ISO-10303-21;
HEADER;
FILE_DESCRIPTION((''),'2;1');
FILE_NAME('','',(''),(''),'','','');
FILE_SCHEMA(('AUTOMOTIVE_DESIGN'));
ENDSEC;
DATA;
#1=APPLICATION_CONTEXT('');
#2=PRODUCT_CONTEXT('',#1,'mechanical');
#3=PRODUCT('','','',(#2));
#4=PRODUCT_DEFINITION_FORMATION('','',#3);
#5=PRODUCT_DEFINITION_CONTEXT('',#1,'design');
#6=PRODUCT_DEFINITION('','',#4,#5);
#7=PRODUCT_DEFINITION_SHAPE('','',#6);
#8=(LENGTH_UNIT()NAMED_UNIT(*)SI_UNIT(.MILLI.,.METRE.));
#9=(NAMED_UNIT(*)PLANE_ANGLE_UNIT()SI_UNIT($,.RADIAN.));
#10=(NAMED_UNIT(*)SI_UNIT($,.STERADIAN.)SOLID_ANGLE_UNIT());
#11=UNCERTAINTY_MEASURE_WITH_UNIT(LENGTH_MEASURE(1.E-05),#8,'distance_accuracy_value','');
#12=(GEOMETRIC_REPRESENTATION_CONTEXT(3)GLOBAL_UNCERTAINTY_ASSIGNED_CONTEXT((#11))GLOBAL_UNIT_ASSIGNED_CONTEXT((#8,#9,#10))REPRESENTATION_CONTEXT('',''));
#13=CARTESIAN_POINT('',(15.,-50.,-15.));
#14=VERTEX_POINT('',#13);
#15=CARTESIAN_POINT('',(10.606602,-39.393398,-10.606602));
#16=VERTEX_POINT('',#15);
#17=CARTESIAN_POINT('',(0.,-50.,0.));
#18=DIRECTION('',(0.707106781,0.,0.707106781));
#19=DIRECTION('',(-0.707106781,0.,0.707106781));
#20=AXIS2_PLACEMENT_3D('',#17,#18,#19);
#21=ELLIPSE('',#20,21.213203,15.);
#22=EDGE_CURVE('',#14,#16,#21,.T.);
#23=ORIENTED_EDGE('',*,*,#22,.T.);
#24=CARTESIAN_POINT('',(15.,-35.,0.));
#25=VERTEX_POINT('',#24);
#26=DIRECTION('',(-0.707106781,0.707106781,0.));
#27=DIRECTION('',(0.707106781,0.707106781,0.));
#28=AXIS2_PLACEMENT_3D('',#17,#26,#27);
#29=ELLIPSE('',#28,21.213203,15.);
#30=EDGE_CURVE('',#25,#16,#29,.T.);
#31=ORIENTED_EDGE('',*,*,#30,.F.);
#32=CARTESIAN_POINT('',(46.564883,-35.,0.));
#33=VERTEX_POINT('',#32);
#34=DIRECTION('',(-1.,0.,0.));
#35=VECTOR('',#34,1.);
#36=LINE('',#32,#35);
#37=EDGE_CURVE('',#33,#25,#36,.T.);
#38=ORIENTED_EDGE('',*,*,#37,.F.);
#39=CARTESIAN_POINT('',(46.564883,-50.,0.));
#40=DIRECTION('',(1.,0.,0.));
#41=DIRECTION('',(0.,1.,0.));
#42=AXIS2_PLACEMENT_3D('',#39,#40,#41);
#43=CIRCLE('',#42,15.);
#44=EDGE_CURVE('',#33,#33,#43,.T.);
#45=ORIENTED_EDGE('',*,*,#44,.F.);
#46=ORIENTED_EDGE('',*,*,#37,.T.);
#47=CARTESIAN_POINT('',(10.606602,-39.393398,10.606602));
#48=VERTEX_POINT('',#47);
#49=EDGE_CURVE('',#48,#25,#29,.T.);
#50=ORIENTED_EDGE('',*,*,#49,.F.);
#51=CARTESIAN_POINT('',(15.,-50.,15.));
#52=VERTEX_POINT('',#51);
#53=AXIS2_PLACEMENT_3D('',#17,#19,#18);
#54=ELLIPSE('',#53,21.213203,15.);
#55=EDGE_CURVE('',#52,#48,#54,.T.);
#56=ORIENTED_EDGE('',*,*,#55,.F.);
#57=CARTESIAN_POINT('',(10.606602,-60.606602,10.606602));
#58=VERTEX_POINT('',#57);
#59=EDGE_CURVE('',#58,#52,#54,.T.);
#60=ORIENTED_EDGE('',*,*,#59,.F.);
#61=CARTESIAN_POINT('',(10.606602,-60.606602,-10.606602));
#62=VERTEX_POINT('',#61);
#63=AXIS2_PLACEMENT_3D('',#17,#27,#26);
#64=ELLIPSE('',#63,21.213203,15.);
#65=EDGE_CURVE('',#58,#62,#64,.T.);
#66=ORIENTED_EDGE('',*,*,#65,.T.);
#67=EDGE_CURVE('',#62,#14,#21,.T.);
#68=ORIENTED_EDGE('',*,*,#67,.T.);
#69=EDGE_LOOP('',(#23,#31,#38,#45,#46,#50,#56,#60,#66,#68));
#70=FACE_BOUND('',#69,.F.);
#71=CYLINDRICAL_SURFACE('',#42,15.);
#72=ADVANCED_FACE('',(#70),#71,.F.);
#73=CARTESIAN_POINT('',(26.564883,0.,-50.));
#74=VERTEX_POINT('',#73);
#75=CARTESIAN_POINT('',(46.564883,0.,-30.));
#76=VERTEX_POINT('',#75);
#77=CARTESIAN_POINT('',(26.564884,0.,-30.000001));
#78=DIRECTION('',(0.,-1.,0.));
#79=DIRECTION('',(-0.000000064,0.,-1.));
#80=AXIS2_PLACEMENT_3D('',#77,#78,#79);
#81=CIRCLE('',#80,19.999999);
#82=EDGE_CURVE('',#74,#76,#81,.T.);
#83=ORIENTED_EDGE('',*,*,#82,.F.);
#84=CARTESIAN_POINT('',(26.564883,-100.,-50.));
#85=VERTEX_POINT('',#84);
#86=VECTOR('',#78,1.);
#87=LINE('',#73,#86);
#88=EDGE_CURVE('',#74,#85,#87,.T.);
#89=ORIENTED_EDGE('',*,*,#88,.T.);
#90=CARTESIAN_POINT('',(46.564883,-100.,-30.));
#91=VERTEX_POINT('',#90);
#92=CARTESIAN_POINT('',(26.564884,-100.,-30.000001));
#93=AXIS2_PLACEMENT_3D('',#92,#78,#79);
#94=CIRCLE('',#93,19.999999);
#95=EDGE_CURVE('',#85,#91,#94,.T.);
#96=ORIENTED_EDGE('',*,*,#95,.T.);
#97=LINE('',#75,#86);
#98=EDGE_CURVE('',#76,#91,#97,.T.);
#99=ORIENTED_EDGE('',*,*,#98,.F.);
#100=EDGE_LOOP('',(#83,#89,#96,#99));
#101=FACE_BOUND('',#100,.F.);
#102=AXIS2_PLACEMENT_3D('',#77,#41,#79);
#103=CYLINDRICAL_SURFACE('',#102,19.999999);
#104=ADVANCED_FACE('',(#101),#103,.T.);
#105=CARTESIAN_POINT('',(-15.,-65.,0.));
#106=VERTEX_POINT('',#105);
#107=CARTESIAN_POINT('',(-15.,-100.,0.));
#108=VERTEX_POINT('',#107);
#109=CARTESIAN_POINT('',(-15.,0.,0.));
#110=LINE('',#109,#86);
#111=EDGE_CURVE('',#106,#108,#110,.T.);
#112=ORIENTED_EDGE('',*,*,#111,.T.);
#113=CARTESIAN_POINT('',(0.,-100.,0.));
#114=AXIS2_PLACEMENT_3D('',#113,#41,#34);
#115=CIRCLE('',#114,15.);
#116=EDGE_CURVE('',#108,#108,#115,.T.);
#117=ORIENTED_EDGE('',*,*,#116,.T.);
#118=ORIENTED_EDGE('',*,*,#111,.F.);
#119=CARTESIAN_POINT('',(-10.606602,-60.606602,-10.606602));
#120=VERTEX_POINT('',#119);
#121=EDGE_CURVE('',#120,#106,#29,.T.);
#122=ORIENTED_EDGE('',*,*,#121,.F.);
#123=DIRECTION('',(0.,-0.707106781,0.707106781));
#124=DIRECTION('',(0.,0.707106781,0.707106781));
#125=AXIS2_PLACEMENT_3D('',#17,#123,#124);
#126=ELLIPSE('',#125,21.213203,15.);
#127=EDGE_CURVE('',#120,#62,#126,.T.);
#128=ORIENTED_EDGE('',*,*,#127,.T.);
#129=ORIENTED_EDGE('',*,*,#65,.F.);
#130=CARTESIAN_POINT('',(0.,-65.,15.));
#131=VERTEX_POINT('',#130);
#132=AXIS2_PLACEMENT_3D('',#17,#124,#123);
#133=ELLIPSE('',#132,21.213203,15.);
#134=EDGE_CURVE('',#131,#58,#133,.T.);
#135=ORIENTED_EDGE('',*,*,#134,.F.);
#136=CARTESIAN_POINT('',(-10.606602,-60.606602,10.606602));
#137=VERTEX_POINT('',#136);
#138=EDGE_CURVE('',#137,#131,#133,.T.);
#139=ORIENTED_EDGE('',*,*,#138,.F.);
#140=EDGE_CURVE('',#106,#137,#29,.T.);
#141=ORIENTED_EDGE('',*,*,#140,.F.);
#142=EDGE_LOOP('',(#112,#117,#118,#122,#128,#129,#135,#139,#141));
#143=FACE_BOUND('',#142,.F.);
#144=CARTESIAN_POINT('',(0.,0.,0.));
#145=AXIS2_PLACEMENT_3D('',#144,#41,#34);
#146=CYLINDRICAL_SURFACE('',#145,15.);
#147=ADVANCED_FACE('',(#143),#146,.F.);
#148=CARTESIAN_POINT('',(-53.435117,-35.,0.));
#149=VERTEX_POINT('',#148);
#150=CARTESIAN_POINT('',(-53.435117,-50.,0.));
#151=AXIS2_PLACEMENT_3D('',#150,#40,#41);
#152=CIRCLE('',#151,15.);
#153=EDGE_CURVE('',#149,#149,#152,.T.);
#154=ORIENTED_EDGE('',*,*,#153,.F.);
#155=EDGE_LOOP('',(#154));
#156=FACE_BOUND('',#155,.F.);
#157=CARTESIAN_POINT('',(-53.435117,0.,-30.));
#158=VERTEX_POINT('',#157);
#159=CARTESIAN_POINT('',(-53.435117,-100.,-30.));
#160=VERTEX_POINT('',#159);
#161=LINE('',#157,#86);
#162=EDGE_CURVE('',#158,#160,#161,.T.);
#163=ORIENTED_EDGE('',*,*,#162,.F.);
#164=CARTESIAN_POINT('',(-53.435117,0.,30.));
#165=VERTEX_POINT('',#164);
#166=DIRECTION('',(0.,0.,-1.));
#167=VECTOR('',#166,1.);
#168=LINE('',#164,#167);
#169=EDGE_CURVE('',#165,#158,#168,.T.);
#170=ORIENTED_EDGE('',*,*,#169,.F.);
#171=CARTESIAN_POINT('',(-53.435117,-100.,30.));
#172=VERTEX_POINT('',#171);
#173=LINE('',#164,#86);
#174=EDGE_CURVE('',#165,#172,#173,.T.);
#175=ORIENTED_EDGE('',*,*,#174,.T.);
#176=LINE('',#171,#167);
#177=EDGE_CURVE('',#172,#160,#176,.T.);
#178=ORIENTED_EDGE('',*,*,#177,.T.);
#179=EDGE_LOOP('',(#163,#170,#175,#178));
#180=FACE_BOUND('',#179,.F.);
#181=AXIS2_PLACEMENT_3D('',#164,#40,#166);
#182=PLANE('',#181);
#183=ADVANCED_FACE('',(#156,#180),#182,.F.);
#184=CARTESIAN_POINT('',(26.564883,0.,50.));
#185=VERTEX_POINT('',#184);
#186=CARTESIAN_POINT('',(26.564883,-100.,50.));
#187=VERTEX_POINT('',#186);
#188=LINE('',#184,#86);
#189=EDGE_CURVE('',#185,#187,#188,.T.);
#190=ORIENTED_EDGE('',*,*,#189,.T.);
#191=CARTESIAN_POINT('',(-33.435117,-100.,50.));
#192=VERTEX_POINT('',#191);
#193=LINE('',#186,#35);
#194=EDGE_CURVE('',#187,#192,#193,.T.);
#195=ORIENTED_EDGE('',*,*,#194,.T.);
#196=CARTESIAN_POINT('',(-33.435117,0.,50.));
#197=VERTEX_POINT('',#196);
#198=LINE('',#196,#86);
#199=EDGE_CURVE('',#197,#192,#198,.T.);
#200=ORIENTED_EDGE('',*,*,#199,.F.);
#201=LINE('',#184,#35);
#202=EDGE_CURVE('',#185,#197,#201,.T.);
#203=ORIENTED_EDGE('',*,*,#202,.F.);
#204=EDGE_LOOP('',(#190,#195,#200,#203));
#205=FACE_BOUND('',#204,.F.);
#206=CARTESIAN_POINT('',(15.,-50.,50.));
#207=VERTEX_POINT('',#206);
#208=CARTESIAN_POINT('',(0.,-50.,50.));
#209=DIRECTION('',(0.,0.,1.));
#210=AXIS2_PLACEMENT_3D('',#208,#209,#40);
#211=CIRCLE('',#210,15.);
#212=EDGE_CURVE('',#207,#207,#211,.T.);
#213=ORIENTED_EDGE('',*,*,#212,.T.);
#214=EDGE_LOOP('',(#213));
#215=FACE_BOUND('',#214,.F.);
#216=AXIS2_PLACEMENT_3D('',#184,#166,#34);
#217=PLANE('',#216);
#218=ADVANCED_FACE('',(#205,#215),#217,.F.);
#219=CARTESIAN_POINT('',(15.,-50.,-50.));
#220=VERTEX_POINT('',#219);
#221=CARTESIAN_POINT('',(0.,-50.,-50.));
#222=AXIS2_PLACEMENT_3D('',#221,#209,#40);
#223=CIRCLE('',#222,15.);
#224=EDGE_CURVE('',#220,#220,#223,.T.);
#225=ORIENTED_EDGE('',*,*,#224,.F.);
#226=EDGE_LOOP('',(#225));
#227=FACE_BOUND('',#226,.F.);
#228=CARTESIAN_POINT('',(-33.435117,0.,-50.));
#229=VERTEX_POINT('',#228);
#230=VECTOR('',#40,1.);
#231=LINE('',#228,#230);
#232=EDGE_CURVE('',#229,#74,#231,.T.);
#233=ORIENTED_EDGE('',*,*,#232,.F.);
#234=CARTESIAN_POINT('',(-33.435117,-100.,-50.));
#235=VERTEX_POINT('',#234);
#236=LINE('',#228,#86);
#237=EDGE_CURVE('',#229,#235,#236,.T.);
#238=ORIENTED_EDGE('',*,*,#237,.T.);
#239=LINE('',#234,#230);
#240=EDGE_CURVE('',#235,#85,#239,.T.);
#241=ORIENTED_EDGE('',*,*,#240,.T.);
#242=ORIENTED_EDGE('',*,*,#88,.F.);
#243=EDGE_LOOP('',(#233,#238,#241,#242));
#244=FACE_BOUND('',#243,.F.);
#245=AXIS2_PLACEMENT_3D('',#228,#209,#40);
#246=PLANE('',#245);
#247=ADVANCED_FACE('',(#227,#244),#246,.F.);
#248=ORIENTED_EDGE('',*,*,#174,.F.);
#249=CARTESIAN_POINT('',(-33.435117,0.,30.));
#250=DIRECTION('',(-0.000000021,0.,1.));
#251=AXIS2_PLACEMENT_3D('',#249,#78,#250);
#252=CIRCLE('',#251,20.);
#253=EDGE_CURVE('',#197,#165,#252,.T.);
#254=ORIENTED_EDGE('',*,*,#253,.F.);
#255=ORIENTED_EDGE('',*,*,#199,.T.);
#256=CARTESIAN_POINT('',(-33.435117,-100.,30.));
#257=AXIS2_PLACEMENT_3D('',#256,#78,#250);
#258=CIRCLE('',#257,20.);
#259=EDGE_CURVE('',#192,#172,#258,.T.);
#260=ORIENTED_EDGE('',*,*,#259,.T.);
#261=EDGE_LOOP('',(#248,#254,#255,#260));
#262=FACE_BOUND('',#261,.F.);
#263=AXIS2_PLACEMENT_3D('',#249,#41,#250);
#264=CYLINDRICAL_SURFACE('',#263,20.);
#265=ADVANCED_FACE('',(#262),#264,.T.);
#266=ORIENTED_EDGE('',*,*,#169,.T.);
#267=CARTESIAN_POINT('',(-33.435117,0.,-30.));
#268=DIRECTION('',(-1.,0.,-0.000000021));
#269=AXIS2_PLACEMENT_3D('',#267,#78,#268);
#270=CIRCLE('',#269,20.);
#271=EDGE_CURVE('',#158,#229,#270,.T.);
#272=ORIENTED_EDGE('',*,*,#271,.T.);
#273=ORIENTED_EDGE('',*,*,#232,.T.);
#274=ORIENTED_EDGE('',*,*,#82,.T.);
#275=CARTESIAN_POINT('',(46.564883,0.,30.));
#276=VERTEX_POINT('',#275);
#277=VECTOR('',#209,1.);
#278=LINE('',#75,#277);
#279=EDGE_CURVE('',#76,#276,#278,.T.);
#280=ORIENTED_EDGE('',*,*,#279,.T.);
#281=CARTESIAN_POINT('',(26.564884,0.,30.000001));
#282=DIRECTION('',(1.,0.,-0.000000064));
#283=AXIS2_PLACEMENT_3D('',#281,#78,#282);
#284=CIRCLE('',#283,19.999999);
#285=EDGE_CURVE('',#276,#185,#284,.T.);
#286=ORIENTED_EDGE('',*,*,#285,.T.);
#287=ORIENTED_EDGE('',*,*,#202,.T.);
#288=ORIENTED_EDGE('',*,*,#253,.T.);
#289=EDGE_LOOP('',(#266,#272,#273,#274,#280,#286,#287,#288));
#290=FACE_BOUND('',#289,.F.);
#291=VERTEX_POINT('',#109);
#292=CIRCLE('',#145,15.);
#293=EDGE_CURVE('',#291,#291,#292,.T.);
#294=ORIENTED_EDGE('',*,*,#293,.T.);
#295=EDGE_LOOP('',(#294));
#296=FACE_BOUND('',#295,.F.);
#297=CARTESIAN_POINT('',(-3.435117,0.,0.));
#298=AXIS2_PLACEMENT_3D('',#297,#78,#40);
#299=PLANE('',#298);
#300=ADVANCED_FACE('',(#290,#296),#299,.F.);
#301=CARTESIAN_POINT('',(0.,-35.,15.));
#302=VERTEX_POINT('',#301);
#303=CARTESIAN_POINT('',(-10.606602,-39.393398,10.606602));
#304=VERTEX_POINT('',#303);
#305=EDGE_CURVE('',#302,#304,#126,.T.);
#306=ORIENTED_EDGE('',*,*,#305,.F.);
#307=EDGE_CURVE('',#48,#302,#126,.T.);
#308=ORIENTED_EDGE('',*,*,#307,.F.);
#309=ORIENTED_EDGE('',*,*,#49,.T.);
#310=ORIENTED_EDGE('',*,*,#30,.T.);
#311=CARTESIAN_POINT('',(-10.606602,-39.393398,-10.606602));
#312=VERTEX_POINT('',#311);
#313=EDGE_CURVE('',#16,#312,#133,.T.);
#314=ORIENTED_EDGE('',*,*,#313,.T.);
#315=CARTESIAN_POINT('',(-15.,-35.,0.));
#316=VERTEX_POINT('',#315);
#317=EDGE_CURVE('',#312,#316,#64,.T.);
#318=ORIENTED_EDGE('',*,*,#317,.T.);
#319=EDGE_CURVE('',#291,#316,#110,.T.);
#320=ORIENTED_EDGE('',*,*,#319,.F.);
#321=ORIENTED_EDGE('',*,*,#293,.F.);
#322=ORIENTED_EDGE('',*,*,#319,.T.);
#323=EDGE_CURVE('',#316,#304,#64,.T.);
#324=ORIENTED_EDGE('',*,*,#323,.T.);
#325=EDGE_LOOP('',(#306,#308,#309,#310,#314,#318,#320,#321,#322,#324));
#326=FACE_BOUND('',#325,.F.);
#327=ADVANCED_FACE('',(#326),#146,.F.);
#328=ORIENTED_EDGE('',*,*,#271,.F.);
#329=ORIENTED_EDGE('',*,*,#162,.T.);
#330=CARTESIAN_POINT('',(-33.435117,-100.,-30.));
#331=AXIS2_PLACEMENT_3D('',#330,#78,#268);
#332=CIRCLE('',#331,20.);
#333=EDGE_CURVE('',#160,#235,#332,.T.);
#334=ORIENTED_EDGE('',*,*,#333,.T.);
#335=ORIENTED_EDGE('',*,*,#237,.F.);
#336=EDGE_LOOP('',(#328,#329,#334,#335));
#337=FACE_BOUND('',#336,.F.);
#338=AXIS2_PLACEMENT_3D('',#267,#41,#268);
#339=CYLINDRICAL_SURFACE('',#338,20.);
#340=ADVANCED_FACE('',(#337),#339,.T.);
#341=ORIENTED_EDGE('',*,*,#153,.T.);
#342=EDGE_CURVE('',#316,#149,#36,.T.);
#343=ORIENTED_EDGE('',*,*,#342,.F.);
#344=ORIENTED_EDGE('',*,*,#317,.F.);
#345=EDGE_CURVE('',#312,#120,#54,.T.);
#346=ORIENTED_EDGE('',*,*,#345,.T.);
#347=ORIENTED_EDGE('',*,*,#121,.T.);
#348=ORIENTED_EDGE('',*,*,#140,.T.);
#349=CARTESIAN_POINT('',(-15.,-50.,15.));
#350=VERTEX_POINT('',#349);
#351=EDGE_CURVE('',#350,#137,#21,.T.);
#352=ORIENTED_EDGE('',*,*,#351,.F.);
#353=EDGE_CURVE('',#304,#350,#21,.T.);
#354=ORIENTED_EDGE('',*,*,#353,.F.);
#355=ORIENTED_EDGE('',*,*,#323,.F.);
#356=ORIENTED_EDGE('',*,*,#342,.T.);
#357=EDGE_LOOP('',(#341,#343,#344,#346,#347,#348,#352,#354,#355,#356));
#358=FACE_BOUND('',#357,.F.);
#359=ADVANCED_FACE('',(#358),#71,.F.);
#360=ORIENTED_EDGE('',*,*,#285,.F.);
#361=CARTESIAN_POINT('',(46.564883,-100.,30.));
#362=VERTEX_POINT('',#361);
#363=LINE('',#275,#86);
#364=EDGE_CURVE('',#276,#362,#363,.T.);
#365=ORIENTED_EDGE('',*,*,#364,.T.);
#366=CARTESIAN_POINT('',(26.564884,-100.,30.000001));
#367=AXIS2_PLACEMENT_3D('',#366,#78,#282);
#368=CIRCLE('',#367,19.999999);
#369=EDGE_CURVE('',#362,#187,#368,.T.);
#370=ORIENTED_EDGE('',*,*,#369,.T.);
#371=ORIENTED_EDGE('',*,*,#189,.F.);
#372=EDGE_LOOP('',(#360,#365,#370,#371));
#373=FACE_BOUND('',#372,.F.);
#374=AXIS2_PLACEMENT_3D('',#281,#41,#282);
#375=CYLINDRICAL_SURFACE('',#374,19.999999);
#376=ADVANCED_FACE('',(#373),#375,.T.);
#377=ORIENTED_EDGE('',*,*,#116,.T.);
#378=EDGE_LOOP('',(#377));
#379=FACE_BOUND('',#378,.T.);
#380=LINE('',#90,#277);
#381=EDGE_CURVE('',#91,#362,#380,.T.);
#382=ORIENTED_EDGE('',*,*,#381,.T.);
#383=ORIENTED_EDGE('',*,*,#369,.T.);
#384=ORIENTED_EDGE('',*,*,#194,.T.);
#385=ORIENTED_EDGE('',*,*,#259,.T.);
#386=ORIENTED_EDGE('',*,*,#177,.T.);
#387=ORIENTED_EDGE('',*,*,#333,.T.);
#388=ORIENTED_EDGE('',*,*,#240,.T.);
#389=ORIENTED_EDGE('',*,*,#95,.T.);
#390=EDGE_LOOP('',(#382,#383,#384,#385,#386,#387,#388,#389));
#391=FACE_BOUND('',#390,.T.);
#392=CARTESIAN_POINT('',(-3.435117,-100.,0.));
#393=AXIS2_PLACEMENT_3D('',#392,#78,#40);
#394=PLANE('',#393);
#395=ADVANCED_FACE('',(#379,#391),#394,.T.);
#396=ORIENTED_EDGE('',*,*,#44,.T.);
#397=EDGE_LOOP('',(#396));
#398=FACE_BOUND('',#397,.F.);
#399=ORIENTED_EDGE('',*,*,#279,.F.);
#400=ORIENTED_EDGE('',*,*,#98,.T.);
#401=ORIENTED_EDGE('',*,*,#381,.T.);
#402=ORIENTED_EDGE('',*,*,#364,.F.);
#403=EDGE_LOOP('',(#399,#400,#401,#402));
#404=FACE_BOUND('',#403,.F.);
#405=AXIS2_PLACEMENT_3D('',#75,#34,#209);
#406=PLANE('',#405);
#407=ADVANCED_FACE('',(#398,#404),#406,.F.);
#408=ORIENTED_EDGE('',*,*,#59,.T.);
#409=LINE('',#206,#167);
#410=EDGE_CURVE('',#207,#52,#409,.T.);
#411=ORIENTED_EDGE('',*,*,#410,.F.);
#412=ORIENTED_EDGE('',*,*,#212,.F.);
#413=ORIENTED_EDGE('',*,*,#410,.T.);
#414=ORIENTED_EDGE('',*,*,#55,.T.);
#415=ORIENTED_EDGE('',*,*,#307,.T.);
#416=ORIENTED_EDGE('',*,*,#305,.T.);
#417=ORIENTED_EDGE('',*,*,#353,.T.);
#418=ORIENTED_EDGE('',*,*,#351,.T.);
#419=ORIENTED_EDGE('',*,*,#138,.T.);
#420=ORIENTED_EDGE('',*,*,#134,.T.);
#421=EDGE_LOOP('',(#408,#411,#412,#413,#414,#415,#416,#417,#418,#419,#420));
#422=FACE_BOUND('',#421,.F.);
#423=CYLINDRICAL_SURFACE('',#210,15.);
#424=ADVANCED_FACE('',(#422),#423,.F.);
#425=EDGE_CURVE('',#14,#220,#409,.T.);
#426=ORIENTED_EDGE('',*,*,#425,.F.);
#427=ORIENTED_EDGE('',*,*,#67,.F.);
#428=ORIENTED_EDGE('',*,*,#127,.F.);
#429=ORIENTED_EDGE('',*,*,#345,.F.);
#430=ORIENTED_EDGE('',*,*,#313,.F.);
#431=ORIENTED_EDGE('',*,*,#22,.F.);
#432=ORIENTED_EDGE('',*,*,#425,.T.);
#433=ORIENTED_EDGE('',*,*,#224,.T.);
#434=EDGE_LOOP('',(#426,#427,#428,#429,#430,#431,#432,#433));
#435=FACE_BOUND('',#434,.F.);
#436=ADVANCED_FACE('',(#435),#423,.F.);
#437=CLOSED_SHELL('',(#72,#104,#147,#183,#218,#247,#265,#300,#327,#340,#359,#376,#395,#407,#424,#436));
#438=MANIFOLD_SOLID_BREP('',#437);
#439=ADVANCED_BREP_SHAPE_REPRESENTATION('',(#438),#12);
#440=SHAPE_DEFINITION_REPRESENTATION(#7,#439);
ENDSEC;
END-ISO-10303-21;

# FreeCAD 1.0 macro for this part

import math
import FreeCAD as App
import Part
import Sketcher

V = App.Vector

doc = App.newDocument("Part")
params = doc.addObject("Spreadsheet::Sheet", "Params")
for row, (alias, value) in enumerate([
    ("sketch1_radius", "19.999999 mm"),
    ("sketch1_width", "60 mm"),
    ("pad1_length", "100 mm"),
    ("sketch2_diameter", "30 mm"),
    ("sketch3_diameter", "30 mm"),
    ("sketch4_diameter", "30 mm"),
], start=1):
    params.set(f"A{row}", alias)
    params.set(f"B{row}", "=" + value)
    params.setAlias(f"B{row}", alias)

body = doc.addObject("PartDesign::Body", "Body")

# Sketch on XZ plane
sketch1 = body.newObject("Sketcher::SketchObject", "Sketch")
sketch1.AttachmentSupport = (doc.getObject("XZ_Plane"), [""])
sketch1.MapMode = "FlatFace"
sketch1.addGeometry([
    Part.ArcOfCircle(Part.Circle(V(27, 30, 0), V(0, 0, 1), 20), math.radians(0), math.radians(90)),  # 0
    Part.LineSegment(V(27, 50, 0), V(-33, 50, 0)),  # 1
    Part.ArcOfCircle(Part.Circle(V(-33, 30, 0), V(0, 0, 1), 20), math.radians(90), math.radians(180)),  # 2
    Part.LineSegment(V(-53, 30, 0), V(-53, -30, 0)),  # 3
    Part.ArcOfCircle(Part.Circle(V(-33, -30, 0), V(0, 0, 1), 20), math.radians(-180), math.radians(-90)),  # 4
    Part.LineSegment(V(-33, -50, 0), V(27, -50, 0)),  # 5
    Part.ArcOfCircle(Part.Circle(V(27, -30, 0), V(0, 0, 1), 20), math.radians(-90), math.radians(0)),  # 6
    Part.LineSegment(V(47, -30, 0), V(47, 30, 0)),  # 7
], False)
sketch1.addConstraint([
    Sketcher.Constraint("Tangent", 0, 2, 1, 1),
    Sketcher.Constraint("Tangent", 1, 2, 2, 1),
    Sketcher.Constraint("Tangent", 2, 2, 3, 1),
    Sketcher.Constraint("Tangent", 3, 2, 4, 1),
    Sketcher.Constraint("Tangent", 4, 2, 5, 1),
    Sketcher.Constraint("Tangent", 5, 2, 6, 1),
    Sketcher.Constraint("Tangent", 6, 2, 7, 1),
    Sketcher.Constraint("Tangent", 7, 2, 0, 1),
    Sketcher.Constraint("Horizontal", 1),
    Sketcher.Constraint("Vertical", 3),
    Sketcher.Constraint("Horizontal", 5),
    Sketcher.Constraint("Vertical", 7),
    Sketcher.Constraint("Equal", 0, 2),
    Sketcher.Constraint("Equal", 2, 4),
    Sketcher.Constraint("Equal", 4, 6),
    Sketcher.Constraint("Equal", 5, 3),
    Sketcher.Constraint("Radius", 0, 19.999999),
    Sketcher.Constraint("DistanceX", 1, 2, 1, 1, 60.0),
    Sketcher.Constraint("DistanceY", -1, 1, 0, 3, 30.000001),
    Sketcher.Constraint("DistanceX", -1, 1, 0, 3, 26.564884),
])
sketch1.setExpression("Constraints[16]", "Params.sketch1_radius")
sketch1.setExpression("Constraints[17]", "Params.sketch1_width")
pad1 = body.newObject("PartDesign::Pad", "Pad")
pad1.Profile = sketch1
pad1.setExpression("Length", "Params.pad1_length")

# Sketch on XY plane
sketch2 = body.newObject("Sketcher::SketchObject", "Sketch001")
sketch2.AttachmentSupport = (doc.getObject("XY_Plane"), [""])
sketch2.MapMode = "FlatFace"
sketch2.AttachmentOffset = App.Placement(V(0, 0, 50), App.Rotation())
sketch2.addGeometry(Part.Circle(V(0, -50, 0), V(0, 0, 1), 15), False)
sketch2.addConstraint([
    Sketcher.Constraint("PointOnObject", 0, 3, -2),
    Sketcher.Constraint("Diameter", 0, 30.0),
    Sketcher.Constraint("DistanceY", 0, 3, -1, 1, 50.0),
])
sketch2.setExpression("Constraints[1]", "Params.sketch2_diameter")
pocket1 = body.newObject("PartDesign::Pocket", "Pocket")
pocket1.Profile = sketch2
pocket1.Type = "ThroughAll"

# Sketch on XZ plane
sketch3 = body.newObject("Sketcher::SketchObject", "Sketch002")
sketch3.AttachmentSupport = (doc.getObject("XZ_Plane"), [""])
sketch3.MapMode = "FlatFace"
sketch3.addGeometry(Part.Circle(V(0, 0, 0), V(0, 0, 1), 15), False)
sketch3.addConstraint([
    Sketcher.Constraint("Coincident", 0, 3, -1, 1),
    Sketcher.Constraint("Diameter", 0, 30.0),
])
sketch3.setExpression("Constraints[1]", "Params.sketch3_diameter")
pocket2 = body.newObject("PartDesign::Pocket", "Pocket001")
pocket2.Profile = sketch3
pocket2.Type = "ThroughAll"
pocket2.Reversed = True

# Sketch on YZ plane
sketch4 = body.newObject("Sketcher::SketchObject", "Sketch003")
sketch4.AttachmentSupport = (doc.getObject("YZ_Plane"), [""])
sketch4.MapMode = "FlatFace"
sketch4.AttachmentOffset = App.Placement(V(0, 0, 46.564883), App.Rotation())
sketch4.addGeometry(Part.Circle(V(-50, 0, 0), V(0, 0, 1), 15), False)
sketch4.addConstraint([
    Sketcher.Constraint("PointOnObject", 0, 3, -1),
    Sketcher.Constraint("Diameter", 0, 30.0),
    Sketcher.Constraint("DistanceX", 0, 3, -1, 1, 50.0),
])
sketch4.setExpression("Constraints[1]", "Params.sketch4_diameter")
pocket3 = body.newObject("PartDesign::Pocket", "Pocket002")
pocket3.Profile = sketch4
pocket3.Type = "ThroughAll"

doc.recompute()
